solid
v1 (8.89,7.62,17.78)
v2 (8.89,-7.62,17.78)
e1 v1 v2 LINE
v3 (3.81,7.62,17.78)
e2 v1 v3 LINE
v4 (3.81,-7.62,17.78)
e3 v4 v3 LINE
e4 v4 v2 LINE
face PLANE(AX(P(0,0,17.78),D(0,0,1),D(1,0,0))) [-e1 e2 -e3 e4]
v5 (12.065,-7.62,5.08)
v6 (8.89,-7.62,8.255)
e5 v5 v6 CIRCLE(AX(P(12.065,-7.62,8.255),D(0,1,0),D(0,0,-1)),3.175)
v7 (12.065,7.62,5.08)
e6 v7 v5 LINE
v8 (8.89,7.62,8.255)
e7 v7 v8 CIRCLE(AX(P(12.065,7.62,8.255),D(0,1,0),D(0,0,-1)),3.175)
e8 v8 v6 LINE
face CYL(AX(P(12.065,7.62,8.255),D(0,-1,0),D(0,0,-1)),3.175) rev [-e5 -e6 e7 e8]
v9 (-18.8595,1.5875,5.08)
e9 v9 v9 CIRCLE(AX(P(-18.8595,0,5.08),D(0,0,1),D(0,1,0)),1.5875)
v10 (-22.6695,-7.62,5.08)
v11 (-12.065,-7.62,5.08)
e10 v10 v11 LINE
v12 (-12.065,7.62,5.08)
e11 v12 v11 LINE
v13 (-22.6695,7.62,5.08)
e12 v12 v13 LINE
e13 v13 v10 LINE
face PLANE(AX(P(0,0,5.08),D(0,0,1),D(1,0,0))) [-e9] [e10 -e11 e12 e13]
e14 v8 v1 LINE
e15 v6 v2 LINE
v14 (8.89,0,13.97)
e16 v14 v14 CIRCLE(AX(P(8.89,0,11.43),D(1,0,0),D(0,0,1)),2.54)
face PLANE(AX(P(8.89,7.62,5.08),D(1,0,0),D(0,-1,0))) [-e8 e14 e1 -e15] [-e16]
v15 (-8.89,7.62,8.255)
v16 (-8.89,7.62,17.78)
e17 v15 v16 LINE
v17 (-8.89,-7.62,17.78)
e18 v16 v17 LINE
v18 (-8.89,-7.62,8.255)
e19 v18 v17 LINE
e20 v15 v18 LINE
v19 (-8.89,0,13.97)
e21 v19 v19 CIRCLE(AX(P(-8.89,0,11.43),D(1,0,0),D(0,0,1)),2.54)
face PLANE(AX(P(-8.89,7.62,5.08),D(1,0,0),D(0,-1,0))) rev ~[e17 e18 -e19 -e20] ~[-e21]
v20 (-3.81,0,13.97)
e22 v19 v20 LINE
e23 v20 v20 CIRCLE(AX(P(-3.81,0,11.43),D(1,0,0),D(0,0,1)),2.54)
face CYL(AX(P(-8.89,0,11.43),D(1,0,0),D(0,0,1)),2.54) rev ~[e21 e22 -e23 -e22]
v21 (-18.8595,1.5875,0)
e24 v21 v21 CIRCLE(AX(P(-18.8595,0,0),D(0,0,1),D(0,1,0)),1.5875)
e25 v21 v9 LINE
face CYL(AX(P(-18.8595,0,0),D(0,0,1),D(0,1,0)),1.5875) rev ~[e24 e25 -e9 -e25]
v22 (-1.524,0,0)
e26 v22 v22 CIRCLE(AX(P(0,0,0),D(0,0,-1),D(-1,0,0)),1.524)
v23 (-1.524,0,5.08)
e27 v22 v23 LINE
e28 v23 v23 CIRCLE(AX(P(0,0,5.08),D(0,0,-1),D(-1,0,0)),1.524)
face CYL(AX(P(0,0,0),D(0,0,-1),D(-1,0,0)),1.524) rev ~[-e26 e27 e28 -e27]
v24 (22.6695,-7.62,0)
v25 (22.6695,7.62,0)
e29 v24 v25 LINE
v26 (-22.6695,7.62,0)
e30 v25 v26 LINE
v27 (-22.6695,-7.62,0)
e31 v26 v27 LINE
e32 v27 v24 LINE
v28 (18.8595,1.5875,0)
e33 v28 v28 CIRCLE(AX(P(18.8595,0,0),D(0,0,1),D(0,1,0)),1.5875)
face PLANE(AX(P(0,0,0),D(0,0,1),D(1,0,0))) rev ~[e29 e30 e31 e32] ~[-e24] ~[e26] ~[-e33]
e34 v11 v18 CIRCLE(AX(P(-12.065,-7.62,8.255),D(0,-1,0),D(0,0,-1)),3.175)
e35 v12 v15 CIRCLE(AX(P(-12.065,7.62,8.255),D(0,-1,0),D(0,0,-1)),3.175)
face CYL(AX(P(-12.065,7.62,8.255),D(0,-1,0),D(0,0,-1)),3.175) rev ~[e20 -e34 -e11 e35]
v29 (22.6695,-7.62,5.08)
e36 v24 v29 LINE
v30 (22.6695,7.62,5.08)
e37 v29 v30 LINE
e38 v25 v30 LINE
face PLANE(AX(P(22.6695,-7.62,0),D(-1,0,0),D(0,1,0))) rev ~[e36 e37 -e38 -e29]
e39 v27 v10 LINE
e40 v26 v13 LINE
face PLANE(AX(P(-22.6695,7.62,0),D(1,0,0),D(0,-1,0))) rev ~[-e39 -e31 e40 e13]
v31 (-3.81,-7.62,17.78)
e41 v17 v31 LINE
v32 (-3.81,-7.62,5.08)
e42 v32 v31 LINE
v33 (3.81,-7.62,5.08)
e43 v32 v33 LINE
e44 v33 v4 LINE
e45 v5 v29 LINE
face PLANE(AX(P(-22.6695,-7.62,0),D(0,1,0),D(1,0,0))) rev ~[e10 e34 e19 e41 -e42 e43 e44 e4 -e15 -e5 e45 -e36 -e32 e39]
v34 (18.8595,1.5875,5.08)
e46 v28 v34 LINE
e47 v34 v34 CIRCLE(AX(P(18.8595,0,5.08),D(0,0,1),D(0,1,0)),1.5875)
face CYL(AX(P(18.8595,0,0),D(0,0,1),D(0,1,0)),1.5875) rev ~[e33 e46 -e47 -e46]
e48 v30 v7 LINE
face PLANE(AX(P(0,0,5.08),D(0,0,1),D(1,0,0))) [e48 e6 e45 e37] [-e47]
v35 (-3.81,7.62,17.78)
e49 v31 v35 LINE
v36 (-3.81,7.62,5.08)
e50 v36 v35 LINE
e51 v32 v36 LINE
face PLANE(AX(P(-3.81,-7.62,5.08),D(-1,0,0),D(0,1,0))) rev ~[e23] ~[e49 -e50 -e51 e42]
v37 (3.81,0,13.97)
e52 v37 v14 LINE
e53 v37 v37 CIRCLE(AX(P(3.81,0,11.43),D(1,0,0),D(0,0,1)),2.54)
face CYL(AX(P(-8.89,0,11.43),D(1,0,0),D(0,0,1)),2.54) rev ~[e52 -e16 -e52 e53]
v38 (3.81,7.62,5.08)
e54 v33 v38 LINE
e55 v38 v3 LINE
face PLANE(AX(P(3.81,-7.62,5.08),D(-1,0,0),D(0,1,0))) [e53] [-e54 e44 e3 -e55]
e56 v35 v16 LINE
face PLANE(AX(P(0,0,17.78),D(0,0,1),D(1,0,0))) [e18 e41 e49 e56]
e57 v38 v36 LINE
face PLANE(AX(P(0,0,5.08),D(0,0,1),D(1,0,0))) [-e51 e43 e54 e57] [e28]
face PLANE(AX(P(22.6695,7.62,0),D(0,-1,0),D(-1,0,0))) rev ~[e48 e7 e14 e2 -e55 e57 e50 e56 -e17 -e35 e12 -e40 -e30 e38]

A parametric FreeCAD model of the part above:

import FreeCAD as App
import Part
import Sketcher
Q = App.Units.Quantity


def edges_at(feature, points):
    """Names of the edges that pass closest to the given points."""
    edges = feature.Shape.Edges
    near = lambda p: min(range(len(edges)), key=lambda i: edges[i].distToShape(Part.Vertex(*p))[0])
    return sorted({f"Edge{near(p) + 1}" for p in points})


def add_polygon(sketch, points):
    """Adds a closed chain of lines whose ends are joined by coincident constraints."""
    first, n = sketch.GeometryCount, len(points)
    for a, b in zip(points, points[1:] + points[:1]):
        sketch.addGeometry(Part.LineSegment(App.Vector(*a, 0), App.Vector(*b, 0)), False)
    for i in range(n):
        sketch.addConstraint(Sketcher.Constraint("Coincident", first + i, 2, first + (i + 1) % n, 1))

doc = App.newDocument("Part")
body = doc.addObject("PartDesign::Body", "Body")

# Sketch on XY plane
sketch1 = body.newObject("Sketcher::SketchObject", "Sketch")
sketch1.AttachmentSupport = (doc.getObject("XY_Plane"), [""])
sketch1.MapMode = "FlatFace"
add_polygon(sketch1, [(-22.6695, 7.62), (-22.6695, -7.62), (22.6695, -7.62), (22.6695, 7.62)])  # lines 0-3
sketch1.addConstraint(Sketcher.Constraint("Vertical", 0))
sketch1.addConstraint(Sketcher.Constraint("Horizontal", 1))
sketch1.addConstraint(Sketcher.Constraint("Vertical", 2))
sketch1.addConstraint(Sketcher.Constraint("Horizontal", 3))
sketch1.addConstraint(Sketcher.Constraint("Symmetric", 0, 2, 2, 2, -1, 1))
sketch1.addConstraint(Sketcher.Constraint("DistanceY", 0, 2, 0, 1, Q("0.6 in")))
sketch1.addConstraint(Sketcher.Constraint("DistanceX", 1, 1, 1, 2, Q("1.785 in")))
pad1 = body.newObject("PartDesign::Pad", "Pad")
pad1.Profile = sketch1
pad1.Length = Q("0.2 in")

# Sketch on XY plane
sketch2 = body.newObject("Sketcher::SketchObject", "Sketch001")
sketch2.AttachmentSupport = (doc.getObject("XY_Plane"), [""])
sketch2.MapMode = "FlatFace"
sketch2.addGeometry(Part.Circle(App.Vector(-18.8595, 0, 0), App.Vector(0, 0, 1), 1.5875), False)
sketch2.addGeometry(Part.Circle(App.Vector(18.8595, 0, 0), App.Vector(0, 0, 1), 1.5875), False)
sketch2.addConstraint(Sketcher.Constraint("Equal", 0, 1))
sketch2.addConstraint(Sketcher.Constraint("Symmetric", 0, 3, 1, 3, -1, 1))
sketch2.addConstraint(Sketcher.Constraint("PointOnObject", 0, 3, -1))
sketch2.addConstraint(Sketcher.Constraint("Diameter", 0, Q("0.125 in")))
sketch2.addConstraint(Sketcher.Constraint("DistanceX", 0, 3, 1, 3, Q("1.485 in")))
doc.recompute()
hole = body.newObject("PartDesign::Hole", "Hole")
hole.Profile = sketch2
hole.ThreadType = "None"
hole.Diameter = Q("0.125 in")
hole.DepthType = "ThroughAll"
hole.Reversed = True

# Sketch on XY plane
sketch3 = body.newObject("Sketcher::SketchObject", "Sketch002")
sketch3.AttachmentSupport = (doc.getObject("XY_Plane"), [""])
sketch3.MapMode = "FlatFace"
sketch3.addGeometry(Part.Circle(App.Vector(0, 0, 0), App.Vector(0, 0, 1), 1.524), False)
sketch3.addConstraint(Sketcher.Constraint("Coincident", 0, 3, -1, 1))
sketch3.addConstraint(Sketcher.Constraint("Diameter", 0, Q("0.12 in")))
pocket1 = body.newObject("PartDesign::Pocket", "Pocket")
pocket1.Profile = sketch3
pocket1.Type = "ThroughAll"
pocket1.Reversed = True

# Sketch on XY plane
sketch4 = body.newObject("Sketcher::SketchObject", "Sketch003")
sketch4.AttachmentSupport = (doc.getObject("XY_Plane"), [""])
sketch4.MapMode = "FlatFace"
sketch4.AttachmentOffset = App.Placement(App.Vector(0, 0, 0.2 * 25.4), App.Rotation())
add_polygon(sketch4, [(8.89, -7.62), (8.89, 7.62), (3.81, 7.62), (3.81, -7.62)])  # lines 0-3
add_polygon(sketch4, [(-3.81, -7.62), (-3.81, 7.62), (-8.89, 7.62), (-8.89, -7.62)])  # lines 4-7
sketch4.addConstraint(Sketcher.Constraint("Vertical", 0))
sketch4.addConstraint(Sketcher.Constraint("Horizontal", 1))
sketch4.addConstraint(Sketcher.Constraint("Vertical", 2))
sketch4.addConstraint(Sketcher.Constraint("Horizontal", 3))
sketch4.addConstraint(Sketcher.Constraint("Vertical", 4))
sketch4.addConstraint(Sketcher.Constraint("Horizontal", 5))
sketch4.addConstraint(Sketcher.Constraint("Vertical", 6))
sketch4.addConstraint(Sketcher.Constraint("Horizontal", 7))
sketch4.addConstraint(Sketcher.Constraint("Symmetric", 2, 2, 4, 2, -1, 1))
sketch4.addConstraint(Sketcher.Constraint("Symmetric", 0, 2, 6, 2, -1, 1))
sketch4.addConstraint(Sketcher.Constraint("Horizontal", 1, 2, 4, 2))
sketch4.addConstraint(Sketcher.Constraint("DistanceX", 1, 2, 1, 1, Q("0.2 in")))
sketch4.addConstraint(Sketcher.Constraint("DistanceX", -1, 1, 1, 2, Q("0.15 in")))
sketch4.addConstraint(Sketcher.Constraint("DistanceY", 0, 1, 0, 2, Q("0.6 in")))
pad2 = body.newObject("PartDesign::Pad", "Pad001")
pad2.Profile = sketch4
pad2.Length = Q("0.5 in")

# Sketch on YZ plane
sketch5 = body.newObject("Sketcher::SketchObject", "Sketch004")
sketch5.AttachmentSupport = (doc.getObject("YZ_Plane"), [""])
sketch5.MapMode = "FlatFace"
sketch5.AttachmentOffset = App.Placement(App.Vector(0, 0, -0.35 * 25.4), App.Rotation())
sketch5.addGeometry(Part.Circle(App.Vector(0, 11.43, 0), App.Vector(0, 0, 1), 2.54), False)
sketch5.addConstraint(Sketcher.Constraint("PointOnObject", 0, 3, -2))
sketch5.addConstraint(Sketcher.Constraint("Diameter", 0, Q("0.2 in")))
sketch5.addConstraint(Sketcher.Constraint("DistanceY", -1, 1, 0, 3, Q("0.45 in")))
doc.recompute()
hole2 = body.newObject("PartDesign::Hole", "Hole001")
hole2.Profile = sketch5
hole2.ThreadType = "None"
hole2.Diameter = Q("0.2 in")
hole2.DepthType = "ThroughAll"
hole2.Reversed = True
doc.recompute()

fillet = body.newObject("PartDesign::Fillet", "Fillet")
fillet.Base = (hole2, edges_at(hole2, [(-8.89, 0, 5.08), (8.89, 0, 5.08)]))
fillet.Radius = Q("0.125 in")

doc.recompute()
